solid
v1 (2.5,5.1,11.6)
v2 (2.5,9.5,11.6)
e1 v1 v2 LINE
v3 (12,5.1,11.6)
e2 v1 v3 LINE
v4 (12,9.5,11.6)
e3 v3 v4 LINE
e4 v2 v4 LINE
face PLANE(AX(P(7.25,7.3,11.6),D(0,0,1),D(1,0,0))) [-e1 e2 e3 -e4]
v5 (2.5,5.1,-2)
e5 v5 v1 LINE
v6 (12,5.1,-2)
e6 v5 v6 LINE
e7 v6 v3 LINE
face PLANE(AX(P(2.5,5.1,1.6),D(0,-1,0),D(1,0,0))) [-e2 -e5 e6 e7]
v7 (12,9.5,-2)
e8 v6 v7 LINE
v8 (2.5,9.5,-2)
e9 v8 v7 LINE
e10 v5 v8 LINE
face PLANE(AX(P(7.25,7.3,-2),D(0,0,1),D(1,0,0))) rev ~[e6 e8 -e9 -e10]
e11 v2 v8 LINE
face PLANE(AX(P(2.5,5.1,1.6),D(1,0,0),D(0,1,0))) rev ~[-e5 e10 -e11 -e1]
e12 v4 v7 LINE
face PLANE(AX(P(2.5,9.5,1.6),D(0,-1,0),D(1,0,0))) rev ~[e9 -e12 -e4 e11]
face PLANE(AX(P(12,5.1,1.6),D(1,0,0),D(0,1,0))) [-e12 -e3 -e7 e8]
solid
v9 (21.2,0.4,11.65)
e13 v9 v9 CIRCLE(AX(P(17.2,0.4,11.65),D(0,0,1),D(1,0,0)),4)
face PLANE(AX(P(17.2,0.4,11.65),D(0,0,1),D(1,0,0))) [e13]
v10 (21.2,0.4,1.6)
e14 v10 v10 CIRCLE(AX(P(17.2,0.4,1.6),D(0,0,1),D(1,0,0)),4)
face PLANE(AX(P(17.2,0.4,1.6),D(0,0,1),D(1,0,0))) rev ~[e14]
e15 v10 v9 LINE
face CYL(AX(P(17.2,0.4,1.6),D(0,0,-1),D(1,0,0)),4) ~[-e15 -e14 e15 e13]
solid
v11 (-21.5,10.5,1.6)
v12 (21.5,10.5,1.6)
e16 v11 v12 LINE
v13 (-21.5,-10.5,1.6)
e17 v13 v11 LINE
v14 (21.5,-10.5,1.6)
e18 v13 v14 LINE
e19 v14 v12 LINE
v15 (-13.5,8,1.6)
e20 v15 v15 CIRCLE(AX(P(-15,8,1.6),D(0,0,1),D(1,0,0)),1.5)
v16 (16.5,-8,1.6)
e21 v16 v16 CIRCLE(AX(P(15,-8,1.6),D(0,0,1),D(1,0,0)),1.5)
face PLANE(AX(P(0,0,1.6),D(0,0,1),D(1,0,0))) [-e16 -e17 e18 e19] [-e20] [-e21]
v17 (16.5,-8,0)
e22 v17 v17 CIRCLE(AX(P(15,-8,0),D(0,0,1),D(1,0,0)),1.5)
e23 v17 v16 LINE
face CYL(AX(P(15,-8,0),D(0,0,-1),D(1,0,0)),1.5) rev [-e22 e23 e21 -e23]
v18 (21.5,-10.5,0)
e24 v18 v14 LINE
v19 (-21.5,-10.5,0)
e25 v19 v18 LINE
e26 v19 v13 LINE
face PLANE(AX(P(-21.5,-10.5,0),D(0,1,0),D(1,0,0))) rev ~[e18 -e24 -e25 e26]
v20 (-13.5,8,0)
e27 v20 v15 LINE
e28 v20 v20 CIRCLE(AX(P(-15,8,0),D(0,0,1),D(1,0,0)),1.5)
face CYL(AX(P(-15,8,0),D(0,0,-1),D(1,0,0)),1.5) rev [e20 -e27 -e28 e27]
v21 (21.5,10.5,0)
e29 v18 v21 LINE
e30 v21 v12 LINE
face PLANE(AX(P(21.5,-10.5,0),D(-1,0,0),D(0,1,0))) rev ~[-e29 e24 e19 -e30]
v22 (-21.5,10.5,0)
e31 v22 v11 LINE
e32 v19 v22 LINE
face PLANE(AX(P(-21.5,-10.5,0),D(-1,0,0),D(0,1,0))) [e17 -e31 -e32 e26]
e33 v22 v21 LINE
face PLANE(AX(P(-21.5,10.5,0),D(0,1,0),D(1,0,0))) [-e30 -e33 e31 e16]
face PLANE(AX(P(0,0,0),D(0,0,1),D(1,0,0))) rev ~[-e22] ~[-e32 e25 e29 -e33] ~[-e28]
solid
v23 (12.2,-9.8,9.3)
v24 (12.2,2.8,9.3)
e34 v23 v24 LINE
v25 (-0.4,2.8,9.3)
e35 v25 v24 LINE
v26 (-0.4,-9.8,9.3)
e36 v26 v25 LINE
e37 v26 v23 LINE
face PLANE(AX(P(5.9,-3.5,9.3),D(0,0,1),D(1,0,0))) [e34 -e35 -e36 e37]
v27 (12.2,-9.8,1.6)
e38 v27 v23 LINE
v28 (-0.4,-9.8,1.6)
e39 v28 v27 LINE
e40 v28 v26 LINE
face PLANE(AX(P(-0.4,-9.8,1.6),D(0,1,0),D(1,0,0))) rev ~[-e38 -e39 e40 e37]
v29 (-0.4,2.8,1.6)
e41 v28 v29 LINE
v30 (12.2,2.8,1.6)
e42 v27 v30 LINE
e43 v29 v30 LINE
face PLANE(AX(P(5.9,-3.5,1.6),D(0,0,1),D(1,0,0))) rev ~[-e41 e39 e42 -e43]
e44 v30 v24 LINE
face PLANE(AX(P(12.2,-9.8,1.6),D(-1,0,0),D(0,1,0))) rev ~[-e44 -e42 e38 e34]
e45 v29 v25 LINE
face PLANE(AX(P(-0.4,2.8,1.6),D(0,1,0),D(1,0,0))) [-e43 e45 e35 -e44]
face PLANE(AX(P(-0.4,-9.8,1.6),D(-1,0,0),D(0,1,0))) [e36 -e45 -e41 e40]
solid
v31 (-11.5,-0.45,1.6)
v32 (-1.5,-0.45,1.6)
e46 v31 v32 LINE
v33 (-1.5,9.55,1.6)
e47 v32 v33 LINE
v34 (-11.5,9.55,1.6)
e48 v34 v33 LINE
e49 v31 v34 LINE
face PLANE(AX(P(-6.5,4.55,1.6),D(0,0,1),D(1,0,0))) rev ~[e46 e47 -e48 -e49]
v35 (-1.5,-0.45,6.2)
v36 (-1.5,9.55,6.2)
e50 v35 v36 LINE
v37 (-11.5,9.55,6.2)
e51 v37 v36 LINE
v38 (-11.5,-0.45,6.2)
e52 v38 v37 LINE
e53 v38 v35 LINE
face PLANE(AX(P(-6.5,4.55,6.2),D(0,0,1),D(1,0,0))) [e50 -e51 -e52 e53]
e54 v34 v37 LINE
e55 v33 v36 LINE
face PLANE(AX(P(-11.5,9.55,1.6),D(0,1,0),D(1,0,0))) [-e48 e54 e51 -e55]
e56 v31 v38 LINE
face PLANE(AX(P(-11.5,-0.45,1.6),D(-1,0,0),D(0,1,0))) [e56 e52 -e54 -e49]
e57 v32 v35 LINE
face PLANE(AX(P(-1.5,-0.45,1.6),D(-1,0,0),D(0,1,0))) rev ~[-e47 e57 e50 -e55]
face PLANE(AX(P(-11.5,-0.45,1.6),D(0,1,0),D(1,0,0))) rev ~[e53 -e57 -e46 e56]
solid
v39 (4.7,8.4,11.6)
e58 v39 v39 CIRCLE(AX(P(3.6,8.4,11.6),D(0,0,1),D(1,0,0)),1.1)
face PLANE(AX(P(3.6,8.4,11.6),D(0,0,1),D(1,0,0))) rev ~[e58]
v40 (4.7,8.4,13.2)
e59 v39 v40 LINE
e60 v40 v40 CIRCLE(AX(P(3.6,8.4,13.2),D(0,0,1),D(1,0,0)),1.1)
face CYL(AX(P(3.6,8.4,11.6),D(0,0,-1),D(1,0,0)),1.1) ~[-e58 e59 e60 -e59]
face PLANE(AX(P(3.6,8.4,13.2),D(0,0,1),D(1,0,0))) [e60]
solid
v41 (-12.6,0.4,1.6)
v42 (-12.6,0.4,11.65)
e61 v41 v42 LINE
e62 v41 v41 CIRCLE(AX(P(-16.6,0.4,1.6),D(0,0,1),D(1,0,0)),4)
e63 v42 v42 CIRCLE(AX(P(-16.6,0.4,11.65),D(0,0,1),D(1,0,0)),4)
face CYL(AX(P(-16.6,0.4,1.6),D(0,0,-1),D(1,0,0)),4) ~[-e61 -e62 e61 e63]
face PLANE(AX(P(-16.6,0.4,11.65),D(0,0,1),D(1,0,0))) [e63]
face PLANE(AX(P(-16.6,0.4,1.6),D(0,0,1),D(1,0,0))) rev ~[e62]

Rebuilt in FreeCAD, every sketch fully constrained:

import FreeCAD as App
import Part
import Sketcher
Q = App.Units.Quantity

doc = App.newDocument("Part")
body = doc.addObject("PartDesign::Body", "Body")

# Sketch on XY plane
sketch1 = body.newObject("Sketcher::SketchObject", "Sketch")
sketch1.AttachmentSupport = (doc.getObject("XY_Plane"), [""])
sketch1.MapMode = "FlatFace"
sketch1.addGeometry(Part.LineSegment(App.Vector(-21.5, 10.5, 0), App.Vector(-21.5, -10.5, 0)), False)
sketch1.addGeometry(Part.LineSegment(App.Vector(-21.5, -10.5, 0), App.Vector(21.5, -10.5, 0)), False)
sketch1.addGeometry(Part.LineSegment(App.Vector(21.5, -10.5, 0), App.Vector(21.5, 10.5, 0)), False)
sketch1.addGeometry(Part.LineSegment(App.Vector(21.5, 10.5, 0), App.Vector(-21.5, 10.5, 0)), False)
sketch1.addGeometry(Part.Circle(App.Vector(15, -8, 0), App.Vector(0, 0, 1), 1.5), False)
sketch1.addGeometry(Part.Circle(App.Vector(-15, 8, 0), App.Vector(0, 0, 1), 1.5), False)
sketch1.addConstraint(Sketcher.Constraint("Coincident", 0, 2, 1, 1))
sketch1.addConstraint(Sketcher.Constraint("Coincident", 1, 2, 2, 1))
sketch1.addConstraint(Sketcher.Constraint("Coincident", 2, 2, 3, 1))
sketch1.addConstraint(Sketcher.Constraint("Coincident", 3, 2, 0, 1))
sketch1.addConstraint(Sketcher.Constraint("Vertical", 0))
sketch1.addConstraint(Sketcher.Constraint("Horizontal", 1))
sketch1.addConstraint(Sketcher.Constraint("Vertical", 2))
sketch1.addConstraint(Sketcher.Constraint("Horizontal", 3))
sketch1.addConstraint(Sketcher.Constraint("Equal", 4, 5))
sketch1.addConstraint(Sketcher.Constraint("Symmetric", 4, 3, 5, 3, -1, 1))
sketch1.addConstraint(Sketcher.Constraint("Symmetric", 0, 2, 2, 2, -1, 1))
sketch1.addConstraint(Sketcher.Constraint("Diameter", 4, Q("3 mm")))
sketch1.addConstraint(Sketcher.Constraint("DistanceX", 1, 1, 1, 2, Q("43 mm")))
sketch1.addConstraint(Sketcher.Constraint("DistanceY", 0, 2, 0, 1, Q("21 mm")))
sketch1.addConstraint(Sketcher.Constraint("DistanceX", -1, 1, 4, 3, Q("15 mm")))
sketch1.addConstraint(Sketcher.Constraint("DistanceY", 4, 3, -1, 1, Q("8 mm")))
pad1 = body.newObject("PartDesign::Pad", "Pad")
pad1.Profile = sketch1
pad1.Length = 1.6
body2 = doc.addObject("PartDesign::Body", "Body001")

# Sketch on XY plane
sketch2 = body2.newObject("Sketcher::SketchObject", "Sketch001")
sketch2.AttachmentSupport = (doc.getObject("XY_Plane001"), [""])
sketch2.MapMode = "FlatFace"
sketch2.AttachmentOffset = App.Placement(App.Vector(0, 0, 1.6), App.Rotation())
sketch2.addGeometry(Part.Circle(App.Vector(-16.6, 0.4, 0), App.Vector(0, 0, 1), 4), False)
sketch2.addConstraint(Sketcher.Constraint("Diameter", 0, Q("8 mm")))
sketch2.addConstraint(Sketcher.Constraint("DistanceX", 0, 3, -1, 1, Q("16.6 mm")))
sketch2.addConstraint(Sketcher.Constraint("DistanceY", -1, 1, 0, 3, Q("0.4 mm")))
pad2 = body2.newObject("PartDesign::Pad", "Pad001")
pad2.Profile = sketch2
pad2.Length = 10.05
body3 = doc.addObject("PartDesign::Body", "Body002")

# Sketch on XY plane
sketch3 = body3.newObject("Sketcher::SketchObject", "Sketch002")
sketch3.AttachmentSupport = (doc.getObject("XY_Plane002"), [""])
sketch3.MapMode = "FlatFace"
sketch3.AttachmentOffset = App.Placement(App.Vector(0, 0, 1.6), App.Rotation())
sketch3.addGeometry(Part.Circle(App.Vector(17.2, 0.4, 0), App.Vector(0, 0, 1), 4), False)
sketch3.addConstraint(Sketcher.Constraint("Diameter", 0, Q("8 mm")))
sketch3.addConstraint(Sketcher.Constraint("DistanceX", -1, 1, 0, 3, Q("17.2 mm")))
sketch3.addConstraint(Sketcher.Constraint("DistanceY", -1, 1, 0, 3, Q("0.4 mm")))
pad3 = body3.newObject("PartDesign::Pad", "Pad002")
pad3.Profile = sketch3
pad3.Length = 10.05
body4 = doc.addObject("PartDesign::Body", "Body003")

# Sketch on XY plane
sketch4 = body4.newObject("Sketcher::SketchObject", "Sketch003")
sketch4.AttachmentSupport = (doc.getObject("XY_Plane003"), [""])
sketch4.MapMode = "FlatFace"
sketch4.AttachmentOffset = App.Placement(App.Vector(0, 0, 1.6), App.Rotation())
sketch4.addGeometry(Part.LineSegment(App.Vector(0, 3, 0), App.Vector(0, -10, 0)), False)
sketch4.addGeometry(Part.LineSegment(App.Vector(0, -10, 0), App.Vector(12, -10, 0)), False)
sketch4.addGeometry(Part.LineSegment(App.Vector(12, -10, 0), App.Vector(12, 3, 0)), False)
sketch4.addGeometry(Part.LineSegment(App.Vector(12, 3, 0), App.Vector(0, 3, 0)), False)
sketch4.addConstraint(Sketcher.Constraint("Coincident", 0, 2, 1, 1))
sketch4.addConstraint(Sketcher.Constraint("Coincident", 1, 2, 2, 1))
sketch4.addConstraint(Sketcher.Constraint("Coincident", 2, 2, 3, 1))
sketch4.addConstraint(Sketcher.Constraint("Coincident", 3, 2, 0, 1))
sketch4.addConstraint(Sketcher.Constraint("Vertical", 0))
sketch4.addConstraint(Sketcher.Constraint("Horizontal", 1))
sketch4.addConstraint(Sketcher.Constraint("Vertical", 2))
sketch4.addConstraint(Sketcher.Constraint("Horizontal", 3))
sketch4.addConstraint(Sketcher.Constraint("Equal", 3, 0))
sketch4.addConstraint(Sketcher.Constraint("DistanceX", 1, 1, 1, 2, Q("12.6 mm")))
sketch4.addConstraint(Sketcher.Constraint("DistanceX", 0, 2, -1, 1, Q("0.4 mm")))
sketch4.addConstraint(Sketcher.Constraint("DistanceY", 0, 2, -1, 1, Q("9.8 mm")))
pad4 = body4.newObject("PartDesign::Pad", "Pad003")
pad4.Profile = sketch4
pad4.Length = 7.7
body5 = doc.addObject("PartDesign::Body", "Body004")

# Sketch on XY plane
sketch5 = body5.newObject("Sketcher::SketchObject", "Sketch004")
sketch5.AttachmentSupport = (doc.getObject("XY_Plane004"), [""])
sketch5.MapMode = "FlatFace"
sketch5.AttachmentOffset = App.Placement(App.Vector(0, 0, 1.6), App.Rotation())
sketch5.addGeometry(Part.LineSegment(App.Vector(2.5, 9.5, 0), App.Vector(2.5, 5.1, 0)), False)
sketch5.addGeometry(Part.LineSegment(App.Vector(2.5, 5.1, 0), App.Vector(12, 5.1, 0)), False)
sketch5.addGeometry(Part.LineSegment(App.Vector(12, 5.1, 0), App.Vector(12, 9.5, 0)), False)
sketch5.addGeometry(Part.LineSegment(App.Vector(12, 9.5, 0), App.Vector(2.5, 9.5, 0)), False)
sketch5.addConstraint(Sketcher.Constraint("Coincident", 0, 2, 1, 1))
sketch5.addConstraint(Sketcher.Constraint("Coincident", 1, 2, 2, 1))
sketch5.addConstraint(Sketcher.Constraint("Coincident", 2, 2, 3, 1))
sketch5.addConstraint(Sketcher.Constraint("Coincident", 3, 2, 0, 1))
sketch5.addConstraint(Sketcher.Constraint("Vertical", 0))
sketch5.addConstraint(Sketcher.Constraint("Horizontal", 1))
sketch5.addConstraint(Sketcher.Constraint("Vertical", 2))
sketch5.addConstraint(Sketcher.Constraint("Horizontal", 3))
sketch5.addConstraint(Sketcher.Constraint("DistanceX", 1, 1, 1, 2, Q("9.5 mm")))
sketch5.addConstraint(Sketcher.Constraint("DistanceY", 0, 2, 0, 1, Q("4.4 mm")))
sketch5.addConstraint(Sketcher.Constraint("DistanceX", -1, 1, 1, 2, Q("12 mm")))
sketch5.addConstraint(Sketcher.Constraint("DistanceY", -1, 1, 0, 2, Q("5.1 mm")))
pad5 = body5.newObject("PartDesign::Pad", "Pad004")
pad5.Profile = sketch5
pad5.Type = "TwoLengths"
pad5.Length = 10
pad5.Length2 = 3.6
body6 = doc.addObject("PartDesign::Body", "Body005")

# Sketch on XY plane
sketch6 = body6.newObject("Sketcher::SketchObject", "Sketch005")
sketch6.AttachmentSupport = (doc.getObject("XY_Plane005"), [""])
sketch6.MapMode = "FlatFace"
sketch6.AttachmentOffset = App.Placement(App.Vector(0, 0, 1.6), App.Rotation())
sketch6.addGeometry(Part.LineSegment(App.Vector(-12, 10, 0), App.Vector(-12, 0, 0)), False)
sketch6.addGeometry(Part.LineSegment(App.Vector(-12, 0, 0), App.Vector(-2, 0, 0)), False)
sketch6.addGeometry(Part.LineSegment(App.Vector(-2, 0, 0), App.Vector(-2, 10, 0)), False)
sketch6.addGeometry(Part.LineSegment(App.Vector(-2, 10, 0), App.Vector(-12, 10, 0)), False)
sketch6.addConstraint(Sketcher.Constraint("Coincident", 0, 2, 1, 1))
sketch6.addConstraint(Sketcher.Constraint("Coincident", 1, 2, 2, 1))
sketch6.addConstraint(Sketcher.Constraint("Coincident", 2, 2, 3, 1))
sketch6.addConstraint(Sketcher.Constraint("Coincident", 3, 2, 0, 1))
sketch6.addConstraint(Sketcher.Constraint("Vertical", 0))
sketch6.addConstraint(Sketcher.Constraint("Horizontal", 1))
sketch6.addConstraint(Sketcher.Constraint("Vertical", 2))
sketch6.addConstraint(Sketcher.Constraint("Horizontal", 3))
sketch6.addConstraint(Sketcher.Constraint("Equal", 3, 0))
sketch6.addConstraint(Sketcher.Constraint("DistanceX", 1, 1, 1, 2, Q("10 mm")))
sketch6.addConstraint(Sketcher.Constraint("DistanceX", 0, 2, -1, 1, Q("11.5 mm")))
sketch6.addConstraint(Sketcher.Constraint("DistanceY", 0, 2, -1, 1, Q("0.45 mm")))
pad6 = body6.newObject("PartDesign::Pad", "Pad005")
pad6.Profile = sketch6
pad6.Length = 4.6
body7 = doc.addObject("PartDesign::Body", "Body006")

# Sketch on XY plane
sketch7 = body7.newObject("Sketcher::SketchObject", "Sketch006")
sketch7.AttachmentSupport = (doc.getObject("XY_Plane006"), [""])
sketch7.MapMode = "FlatFace"
sketch7.AttachmentOffset = App.Placement(App.Vector(0, 0, 11.6), App.Rotation())
sketch7.addGeometry(Part.Circle(App.Vector(3.6, 8.4, 0), App.Vector(0, 0, 1), 1.1), False)
sketch7.addConstraint(Sketcher.Constraint("Diameter", 0, Q("2.2 mm")))
sketch7.addConstraint(Sketcher.Constraint("DistanceX", -1, 1, 0, 3, Q("3.6 mm")))
sketch7.addConstraint(Sketcher.Constraint("DistanceY", -1, 1, 0, 3, Q("8.4 mm")))
pad7 = body7.newObject("PartDesign::Pad", "Pad006")
pad7.Profile = sketch7
pad7.Length = 1.6

doc.recompute()
